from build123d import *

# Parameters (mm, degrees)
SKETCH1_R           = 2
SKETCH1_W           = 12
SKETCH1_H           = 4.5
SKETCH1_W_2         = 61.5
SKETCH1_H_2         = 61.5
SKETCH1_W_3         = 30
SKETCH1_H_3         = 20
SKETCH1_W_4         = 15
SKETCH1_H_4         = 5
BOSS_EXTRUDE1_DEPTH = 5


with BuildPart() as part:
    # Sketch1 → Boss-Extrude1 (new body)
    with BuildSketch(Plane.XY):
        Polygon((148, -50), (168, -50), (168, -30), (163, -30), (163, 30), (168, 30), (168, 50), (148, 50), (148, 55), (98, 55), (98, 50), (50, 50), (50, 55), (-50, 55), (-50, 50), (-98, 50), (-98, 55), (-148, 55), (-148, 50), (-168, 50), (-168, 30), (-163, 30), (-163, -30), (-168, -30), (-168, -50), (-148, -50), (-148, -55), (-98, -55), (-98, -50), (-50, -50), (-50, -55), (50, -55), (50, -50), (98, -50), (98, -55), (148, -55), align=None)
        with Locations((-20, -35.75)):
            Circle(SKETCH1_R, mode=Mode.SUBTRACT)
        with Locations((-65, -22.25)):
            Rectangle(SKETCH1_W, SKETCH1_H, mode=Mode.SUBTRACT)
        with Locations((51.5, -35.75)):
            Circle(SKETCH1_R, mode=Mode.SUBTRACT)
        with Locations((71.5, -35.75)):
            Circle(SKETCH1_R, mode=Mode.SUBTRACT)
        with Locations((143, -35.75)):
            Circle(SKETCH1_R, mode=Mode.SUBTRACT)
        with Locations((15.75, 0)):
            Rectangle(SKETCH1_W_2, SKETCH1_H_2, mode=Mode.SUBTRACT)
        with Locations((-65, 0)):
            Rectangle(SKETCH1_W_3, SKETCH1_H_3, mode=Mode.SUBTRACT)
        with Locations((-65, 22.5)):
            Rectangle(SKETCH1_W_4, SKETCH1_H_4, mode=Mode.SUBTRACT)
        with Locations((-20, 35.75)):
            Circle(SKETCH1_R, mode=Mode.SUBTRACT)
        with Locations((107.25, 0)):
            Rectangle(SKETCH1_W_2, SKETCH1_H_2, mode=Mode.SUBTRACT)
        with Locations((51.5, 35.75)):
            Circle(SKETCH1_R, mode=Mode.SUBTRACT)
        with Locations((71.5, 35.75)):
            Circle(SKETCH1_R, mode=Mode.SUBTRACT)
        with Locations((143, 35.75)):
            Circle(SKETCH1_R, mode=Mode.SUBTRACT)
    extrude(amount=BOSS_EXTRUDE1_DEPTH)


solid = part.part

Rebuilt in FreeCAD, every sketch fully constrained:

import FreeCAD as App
import Part
import Sketcher
Q = App.Units.Quantity


def add_polygon(sketch, points):
    """Adds a closed chain of lines whose ends are joined by coincident constraints."""
    first, n = sketch.GeometryCount, len(points)
    for a, b in zip(points, points[1:] + points[:1]):
        sketch.addGeometry(Part.LineSegment(App.Vector(*a, 0), App.Vector(*b, 0)), False)
    for i in range(n):
        sketch.addConstraint(Sketcher.Constraint("Coincident", first + i, 2, first + (i + 1) % n, 1))

doc = App.newDocument("Part")
body = doc.addObject("PartDesign::Body", "Body")

sketch1 = doc.addObject("Sketcher::SketchObject", "Sketch")
body.addObject(sketch1)
sketch1.AttachmentSupport = (doc.XY_Plane, [""])
sketch1.MapMode = "FlatFace"
add_polygon(sketch1, [(148, -50), (168, -50), (168, -30), (163, -30), (163, 30), (168, 30), (168, 50), (148, 50), (148, 55), (98, 55), (98, 50), (50, 50), (50, 55), (-50, 55), (-50, 50), (-98, 50), (-98, 55), (-148, 55), (-148, 50), (-168, 50), (-168, 30), (-163, 30), (-163, -30), (-168, -30), (-168, -50), (-148, -50), (-148, -55), (-98, -55), (-98, -50), (-50, -50), (-50, -55), (50, -55), (50, -50), (98, -50), (98, -55), (148, -55)])
add_polygon(sketch1, [(-59, -24.5), (-71, -24.5), (-71, -20), (-59, -20)])
sketch1.addGeometry(Part.Circle(App.Vector(-20, -35.8, 0), App.Vector(0, 0, 1), 2), False)
sketch1.addGeometry(Part.Circle(App.Vector(51.5, -35.8, 0), App.Vector(0, 0, 1), 2), False)
sketch1.addGeometry(Part.Circle(App.Vector(71.5, -35.8, 0), App.Vector(0, 0, 1), 2), False)
sketch1.addGeometry(Part.Circle(App.Vector(143, -35.8, 0), App.Vector(0, 0, 1), 2), False)
add_polygon(sketch1, [(-50, -10), (-80, -10), (-80, 10), (-50, 10)])
add_polygon(sketch1, [(46.5, -30.8), (-15, -30.8), (-15, 30.8), (46.5, 30.8)])
add_polygon(sketch1, [(-57.5, 20), (-72.5, 20), (-72.5, 25), (-57.5, 25)])
sketch1.addGeometry(Part.Circle(App.Vector(-20, 35.8, 0), App.Vector(0, 0, 1), 2), False)
add_polygon(sketch1, [(138, -30.8), (76.5, -30.8), (76.5, 30.8), (138, 30.8)])
sketch1.addGeometry(Part.Circle(App.Vector(51.5, 35.8, 0), App.Vector(0, 0, 1), 2), False)
sketch1.addGeometry(Part.Circle(App.Vector(71.5, 35.8, 0), App.Vector(0, 0, 1), 2), False)
sketch1.addGeometry(Part.Circle(App.Vector(143, 35.8, 0), App.Vector(0, 0, 1), 2), False)
sketch1.addConstraint(Sketcher.Constraint("Horizontal", 0))
sketch1.addConstraint(Sketcher.Constraint("Vertical", 1))
sketch1.addConstraint(Sketcher.Constraint("Horizontal", 2))
sketch1.addConstraint(Sketcher.Constraint("Vertical", 3))
sketch1.addConstraint(Sketcher.Constraint("Horizontal", 4))
sketch1.addConstraint(Sketcher.Constraint("Vertical", 5))
sketch1.addConstraint(Sketcher.Constraint("Horizontal", 6))
sketch1.addConstraint(Sketcher.Constraint("Vertical", 7))
sketch1.addConstraint(Sketcher.Constraint("Horizontal", 8))
sketch1.addConstraint(Sketcher.Constraint("Vertical", 9))
sketch1.addConstraint(Sketcher.Constraint("Horizontal", 10))
sketch1.addConstraint(Sketcher.Constraint("Vertical", 11))
sketch1.addConstraint(Sketcher.Constraint("Horizontal", 12))
sketch1.addConstraint(Sketcher.Constraint("Vertical", 13))
sketch1.addConstraint(Sketcher.Constraint("Horizontal", 14))
sketch1.addConstraint(Sketcher.Constraint("Vertical", 15))
sketch1.addConstraint(Sketcher.Constraint("Horizontal", 16))
sketch1.addConstraint(Sketcher.Constraint("Vertical", 17))
sketch1.addConstraint(Sketcher.Constraint("Horizontal", 18))
sketch1.addConstraint(Sketcher.Constraint("Vertical", 19))
sketch1.addConstraint(Sketcher.Constraint("Horizontal", 20))
sketch1.addConstraint(Sketcher.Constraint("Vertical", 21))
sketch1.addConstraint(Sketcher.Constraint("Horizontal", 22))
sketch1.addConstraint(Sketcher.Constraint("Vertical", 23))
sketch1.addConstraint(Sketcher.Constraint("Horizontal", 24))
sketch1.addConstraint(Sketcher.Constraint("Vertical", 25))
sketch1.addConstraint(Sketcher.Constraint("Horizontal", 26))
sketch1.addConstraint(Sketcher.Constraint("Vertical", 27))
sketch1.addConstraint(Sketcher.Constraint("Horizontal", 28))
sketch1.addConstraint(Sketcher.Constraint("Vertical", 29))
sketch1.addConstraint(Sketcher.Constraint("Horizontal", 30))
sketch1.addConstraint(Sketcher.Constraint("Vertical", 31))
sketch1.addConstraint(Sketcher.Constraint("Horizontal", 32))
sketch1.addConstraint(Sketcher.Constraint("Vertical", 33))
sketch1.addConstraint(Sketcher.Constraint("Horizontal", 34))
sketch1.addConstraint(Sketcher.Constraint("Vertical", 35))
sketch1.addConstraint(Sketcher.Constraint("Horizontal", 36))
sketch1.addConstraint(Sketcher.Constraint("Vertical", 37))
sketch1.addConstraint(Sketcher.Constraint("Horizontal", 38))
sketch1.addConstraint(Sketcher.Constraint("Vertical", 39))
sketch1.addConstraint(Sketcher.Constraint("Horizontal", 44))
sketch1.addConstraint(Sketcher.Constraint("Vertical", 45))
sketch1.addConstraint(Sketcher.Constraint("Horizontal", 46))
sketch1.addConstraint(Sketcher.Constraint("Vertical", 47))
sketch1.addConstraint(Sketcher.Constraint("Horizontal", 48))
sketch1.addConstraint(Sketcher.Constraint("Vertical", 49))
sketch1.addConstraint(Sketcher.Constraint("Horizontal", 50))
sketch1.addConstraint(Sketcher.Constraint("Vertical", 51))
sketch1.addConstraint(Sketcher.Constraint("Horizontal", 52))
sketch1.addConstraint(Sketcher.Constraint("Vertical", 53))
sketch1.addConstraint(Sketcher.Constraint("Horizontal", 54))
sketch1.addConstraint(Sketcher.Constraint("Vertical", 55))
sketch1.addConstraint(Sketcher.Constraint("Horizontal", 57))
sketch1.addConstraint(Sketcher.Constraint("Vertical", 58))
sketch1.addConstraint(Sketcher.Constraint("Horizontal", 59))
sketch1.addConstraint(Sketcher.Constraint("Vertical", 60))
sketch1.addConstraint(Sketcher.Constraint("Equal", 40, 41))
sketch1.addConstraint(Sketcher.Constraint("Equal", 41, 42))
sketch1.addConstraint(Sketcher.Constraint("Equal", 42, 43))
sketch1.addConstraint(Sketcher.Constraint("Equal", 43, 56))
sketch1.addConstraint(Sketcher.Constraint("Equal", 56, 61))
sketch1.addConstraint(Sketcher.Constraint("Equal", 61, 62))
sketch1.addConstraint(Sketcher.Constraint("Equal", 62, 63))
sketch1.addConstraint(Sketcher.Constraint("Symmetric", 0, 2, 18, 2, -1, 1))
sketch1.addConstraint(Sketcher.Constraint("Symmetric", 2, 2, 20, 2, -1, 1))
sketch1.addConstraint(Sketcher.Constraint("Symmetric", 4, 2, 22, 2, -1, 1))
sketch1.addConstraint(Sketcher.Constraint("Symmetric", 6, 2, 24, 2, -1, 1))
sketch1.addConstraint(Sketcher.Constraint("Symmetric", 8, 2, 26, 2, -1, 1))
sketch1.addConstraint(Sketcher.Constraint("Symmetric", 10, 2, 28, 2, -1, 1))
sketch1.addConstraint(Sketcher.Constraint("Symmetric", 12, 2, 30, 2, -1, 1))
sketch1.addConstraint(Sketcher.Constraint("Symmetric", 14, 2, 32, 2, -1, 1))
sketch1.addConstraint(Sketcher.Constraint("Symmetric", 16, 2, 34, 2, -1, 1))
sketch1.addConstraint(Sketcher.Constraint("Symmetric", 10, 2, 13, 2, -2))
sketch1.addConstraint(Sketcher.Constraint("Symmetric", 8, 2, 15, 2, -2))
sketch1.addConstraint(Sketcher.Constraint("Symmetric", 6, 2, 17, 2, -2))
sketch1.addConstraint(Sketcher.Constraint("Symmetric", 4, 2, 19, 2, -2))
sketch1.addConstraint(Sketcher.Constraint("Symmetric", 40, 3, 56, 3, -1))
sketch1.addConstraint(Sketcher.Constraint("Symmetric", 41, 3, 61, 3, -1))
sketch1.addConstraint(Sketcher.Constraint("Symmetric", 42, 3, 62, 3, -1))
sketch1.addConstraint(Sketcher.Constraint("Symmetric", 43, 3, 63, 3, -1))
sketch1.addConstraint(Sketcher.Constraint("Horizontal", 40, 3, 41, 3))
sketch1.addConstraint(Sketcher.Constraint("Horizontal", 41, 3, 42, 3))
sketch1.addConstraint(Sketcher.Constraint("Horizontal", 42, 3, 43, 3))
sketch1.addConstraint(Sketcher.Constraint("Horizontal", 6, 2, 9, 2))
sketch1.addConstraint(Sketcher.Constraint("Horizontal", 8, 2, 11, 2))
sketch1.addConstraint(Sketcher.Constraint("Horizontal", 51, 2, 57, 2))
sketch1.addConstraint(Sketcher.Constraint("Horizontal", 50, 2, 58, 2))
sketch1.addConstraint(Sketcher.Constraint("Vertical", 29, 2, 46, 2))
sketch1.addConstraint(Sketcher.Constraint("Equal", 50, 57))
sketch1.addConstraint(Sketcher.Constraint("Equal", 24, 1))
sketch1.addConstraint(Sketcher.Constraint("Equal", 22, 7))
sketch1.addConstraint(Sketcher.Constraint("Equal", 23, 45))
sketch1.addConstraint(Sketcher.Constraint("Equal", 59, 49))
sketch1.addConstraint(Sketcher.Constraint("Equal", 35, 53))
sketch1.addConstraint(Sketcher.Constraint("Diameter", 40, Q("4 mm")))
sketch1.addConstraint(Sketcher.Constraint("DistanceX", 0, 1, 0, 2, Q("20 mm")))
sketch1.addConstraint(Sketcher.Constraint("DistanceX", 2, 2, 2, 1, Q("5 mm")))
sketch1.addConstraint(Sketcher.Constraint("DistanceX", 8, 2, 8, 1, Q("50 mm")))
sketch1.addConstraint(Sketcher.Constraint("DistanceX", 10, 2, 10, 1, Q("48 mm")))
sketch1.addConstraint(Sketcher.Constraint("DistanceX", 12, 2, 12, 1, Q("100 mm")))
sketch1.addConstraint(Sketcher.Constraint("DistanceX", 36, 2, 36, 1, Q("12 mm")))
sketch1.addConstraint(Sketcher.Constraint("DistanceX", 44, 2, 44, 1, Q("30 mm")))
sketch1.addConstraint(Sketcher.Constraint("DistanceX", 52, 2, 52, 1, Q("15 mm")))
sketch1.addConstraint(Sketcher.Constraint("DistanceY", 3, 1, 3, 2, Q("60 mm")))
sketch1.addConstraint(Sketcher.Constraint("DistanceX", 48, 2, 48, 1, Q("61.5 mm")))
sketch1.addConstraint(Sketcher.Constraint("DistanceY", 37, 1, 37, 2, Q("4.5 mm")))
sketch1.addConstraint(Sketcher.Constraint("DistanceX", 40, 3, -1, 1, Q("20 mm")))
sketch1.addConstraint(Sketcher.Constraint("DistanceX", -1, 1, 43, 3, Q("143 mm")))
sketch1.addConstraint(Sketcher.Constraint("DistanceX", 36, 2, -1, 1, Q("71 mm")))
sketch1.addConstraint(Sketcher.Constraint("DistanceY", 37, 2, -1, 1, Q("20 mm")))
sketch1.addConstraint(Sketcher.Constraint("DistanceY", 44, 2, -1, 1, Q("10 mm")))
sketch1.addConstraint(Sketcher.Constraint("DistanceX", 48, 2, -1, 1, Q("15 mm")))
sketch1.addConstraint(Sketcher.Constraint("DistanceY", -1, 1, 52, 2, Q("20 mm")))
sketch1.addConstraint(Sketcher.Constraint("DistanceX", -1, 1, 59, 2, Q("138 mm")))
sketch1.addConstraint(Sketcher.Constraint("DistanceX", -1, 1, 41, 3, Q("51.5 mm")))
sketch1.addConstraint(Sketcher.Constraint("DistanceX", -1, 1, 42, 3, Q("71.5 mm")))
sketch1.addConstraint(Sketcher.Constraint("DistanceX", 52, 2, -1, 1, Q("72.5 mm")))
sketch1.addConstraint(Sketcher.Constraint("DistanceY", 40, 3, -1, 1, Q("35.75 mm")))
sketch1.addConstraint(Sketcher.Constraint("DistanceY", 48, 2, -1, 1, Q("30.75 mm")))
pad1 = doc.addObject("PartDesign::Pad", "Pad")
body.addObject(pad1)
pad1.Profile = sketch1
pad1.Length = 5

doc.recompute()
